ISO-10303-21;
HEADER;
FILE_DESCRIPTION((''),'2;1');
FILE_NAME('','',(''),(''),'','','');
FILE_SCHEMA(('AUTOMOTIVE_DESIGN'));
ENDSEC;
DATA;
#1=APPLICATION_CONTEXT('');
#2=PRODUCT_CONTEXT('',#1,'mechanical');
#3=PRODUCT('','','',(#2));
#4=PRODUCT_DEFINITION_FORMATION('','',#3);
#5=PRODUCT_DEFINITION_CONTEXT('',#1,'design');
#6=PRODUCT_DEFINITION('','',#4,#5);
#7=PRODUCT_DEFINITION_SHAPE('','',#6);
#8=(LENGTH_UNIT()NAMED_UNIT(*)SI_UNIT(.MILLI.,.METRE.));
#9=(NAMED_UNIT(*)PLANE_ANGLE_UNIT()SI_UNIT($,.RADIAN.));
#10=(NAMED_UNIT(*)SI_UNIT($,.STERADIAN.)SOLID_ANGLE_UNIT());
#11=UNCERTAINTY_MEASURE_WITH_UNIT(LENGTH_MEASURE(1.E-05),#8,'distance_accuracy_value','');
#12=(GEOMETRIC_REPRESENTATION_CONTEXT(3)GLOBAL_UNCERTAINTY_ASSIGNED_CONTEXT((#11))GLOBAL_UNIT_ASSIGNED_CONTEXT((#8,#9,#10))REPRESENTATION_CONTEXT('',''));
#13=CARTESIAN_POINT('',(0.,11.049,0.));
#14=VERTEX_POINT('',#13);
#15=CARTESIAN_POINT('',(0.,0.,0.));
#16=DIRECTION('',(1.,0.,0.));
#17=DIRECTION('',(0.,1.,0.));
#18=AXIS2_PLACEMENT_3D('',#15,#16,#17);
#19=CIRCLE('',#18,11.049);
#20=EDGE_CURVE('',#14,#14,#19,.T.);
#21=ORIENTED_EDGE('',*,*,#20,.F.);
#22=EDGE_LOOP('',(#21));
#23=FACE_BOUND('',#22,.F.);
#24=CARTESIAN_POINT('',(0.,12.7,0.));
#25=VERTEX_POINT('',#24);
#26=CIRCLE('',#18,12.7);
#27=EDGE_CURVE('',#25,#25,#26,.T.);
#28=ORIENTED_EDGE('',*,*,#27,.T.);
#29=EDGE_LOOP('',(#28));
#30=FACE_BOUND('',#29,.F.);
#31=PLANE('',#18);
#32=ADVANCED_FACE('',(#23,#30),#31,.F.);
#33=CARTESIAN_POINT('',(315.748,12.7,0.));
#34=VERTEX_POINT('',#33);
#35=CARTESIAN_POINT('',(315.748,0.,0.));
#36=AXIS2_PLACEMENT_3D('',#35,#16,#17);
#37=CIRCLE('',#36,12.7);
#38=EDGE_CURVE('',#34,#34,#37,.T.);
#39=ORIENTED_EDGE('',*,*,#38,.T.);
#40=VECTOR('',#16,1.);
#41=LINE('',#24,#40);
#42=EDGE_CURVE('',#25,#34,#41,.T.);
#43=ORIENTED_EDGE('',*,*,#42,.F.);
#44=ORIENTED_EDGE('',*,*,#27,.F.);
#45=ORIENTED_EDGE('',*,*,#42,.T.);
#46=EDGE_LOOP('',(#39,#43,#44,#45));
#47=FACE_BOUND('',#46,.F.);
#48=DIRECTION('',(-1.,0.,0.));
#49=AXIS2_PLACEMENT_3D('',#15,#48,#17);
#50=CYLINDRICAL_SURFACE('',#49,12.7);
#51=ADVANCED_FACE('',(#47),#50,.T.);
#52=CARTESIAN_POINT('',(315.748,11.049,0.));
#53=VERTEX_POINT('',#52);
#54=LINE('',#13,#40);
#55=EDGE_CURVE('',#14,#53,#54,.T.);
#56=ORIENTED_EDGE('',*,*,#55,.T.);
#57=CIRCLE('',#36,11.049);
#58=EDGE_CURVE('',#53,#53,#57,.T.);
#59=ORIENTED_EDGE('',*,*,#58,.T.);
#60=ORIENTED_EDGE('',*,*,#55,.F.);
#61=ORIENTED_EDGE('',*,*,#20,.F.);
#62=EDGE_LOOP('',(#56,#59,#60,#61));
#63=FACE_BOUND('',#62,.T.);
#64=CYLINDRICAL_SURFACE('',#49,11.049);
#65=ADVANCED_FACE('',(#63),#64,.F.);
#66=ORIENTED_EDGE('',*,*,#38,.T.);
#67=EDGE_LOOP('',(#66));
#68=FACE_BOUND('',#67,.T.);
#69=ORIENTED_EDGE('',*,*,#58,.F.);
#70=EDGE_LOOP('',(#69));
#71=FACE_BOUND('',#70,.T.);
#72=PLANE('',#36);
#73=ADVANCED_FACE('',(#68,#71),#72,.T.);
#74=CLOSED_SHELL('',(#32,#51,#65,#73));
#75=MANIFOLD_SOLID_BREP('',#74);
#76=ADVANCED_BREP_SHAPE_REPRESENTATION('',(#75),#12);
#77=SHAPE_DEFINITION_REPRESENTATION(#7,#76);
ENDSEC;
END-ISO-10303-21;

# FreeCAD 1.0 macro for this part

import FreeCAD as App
import Part
import Sketcher

V = App.Vector
Q = App.Units.Quantity

doc = App.newDocument("Part")
params = doc.addObject("Spreadsheet::Sheet", "Params")
for row, (alias, value) in enumerate([
    ("sketch1_diameter", "1 in"),
    ("sketch1_diameter2", "0.87 in"),
    ("pad1_length", "315.748 mm"),
], start=1):
    params.set(f"A{row}", alias)
    params.set(f"B{row}", "=" + value)
    params.setAlias(f"B{row}", alias)

body = doc.addObject("PartDesign::Body", "Body")

# Sketch on YZ plane
sketch1 = doc.addObject("Sketcher::SketchObject", "Sketch")
body.addObject(sketch1)
sketch1.AttachmentSupport = (doc.YZ_Plane, [""])
sketch1.MapMode = "FlatFace"
sketch1.addGeometry([
    Part.Circle(V(0, 0, 0), V(0, 0, 1), 13),
    Part.Circle(V(0, 0, 0), V(0, 0, 1), 11),
], False)
sketch1.addConstraint([
    Sketcher.Constraint("Coincident", 0, 3, -1, 1),
    Sketcher.Constraint("Coincident", 1, 3, -1, 1),
    Sketcher.Constraint("Diameter", 0, Q("1 in")),
    Sketcher.Constraint("Diameter", 1, Q("0.87 in")),
])
sketch1.setExpression("Constraints[2]", "Params.sketch1_diameter")
sketch1.setExpression("Constraints[3]", "Params.sketch1_diameter2")
pad1 = doc.addObject("PartDesign::Pad", "Pad")
body.addObject(pad1)
pad1.Profile = sketch1
pad1.setExpression("Length", "Params.pad1_length")

doc.recompute()
